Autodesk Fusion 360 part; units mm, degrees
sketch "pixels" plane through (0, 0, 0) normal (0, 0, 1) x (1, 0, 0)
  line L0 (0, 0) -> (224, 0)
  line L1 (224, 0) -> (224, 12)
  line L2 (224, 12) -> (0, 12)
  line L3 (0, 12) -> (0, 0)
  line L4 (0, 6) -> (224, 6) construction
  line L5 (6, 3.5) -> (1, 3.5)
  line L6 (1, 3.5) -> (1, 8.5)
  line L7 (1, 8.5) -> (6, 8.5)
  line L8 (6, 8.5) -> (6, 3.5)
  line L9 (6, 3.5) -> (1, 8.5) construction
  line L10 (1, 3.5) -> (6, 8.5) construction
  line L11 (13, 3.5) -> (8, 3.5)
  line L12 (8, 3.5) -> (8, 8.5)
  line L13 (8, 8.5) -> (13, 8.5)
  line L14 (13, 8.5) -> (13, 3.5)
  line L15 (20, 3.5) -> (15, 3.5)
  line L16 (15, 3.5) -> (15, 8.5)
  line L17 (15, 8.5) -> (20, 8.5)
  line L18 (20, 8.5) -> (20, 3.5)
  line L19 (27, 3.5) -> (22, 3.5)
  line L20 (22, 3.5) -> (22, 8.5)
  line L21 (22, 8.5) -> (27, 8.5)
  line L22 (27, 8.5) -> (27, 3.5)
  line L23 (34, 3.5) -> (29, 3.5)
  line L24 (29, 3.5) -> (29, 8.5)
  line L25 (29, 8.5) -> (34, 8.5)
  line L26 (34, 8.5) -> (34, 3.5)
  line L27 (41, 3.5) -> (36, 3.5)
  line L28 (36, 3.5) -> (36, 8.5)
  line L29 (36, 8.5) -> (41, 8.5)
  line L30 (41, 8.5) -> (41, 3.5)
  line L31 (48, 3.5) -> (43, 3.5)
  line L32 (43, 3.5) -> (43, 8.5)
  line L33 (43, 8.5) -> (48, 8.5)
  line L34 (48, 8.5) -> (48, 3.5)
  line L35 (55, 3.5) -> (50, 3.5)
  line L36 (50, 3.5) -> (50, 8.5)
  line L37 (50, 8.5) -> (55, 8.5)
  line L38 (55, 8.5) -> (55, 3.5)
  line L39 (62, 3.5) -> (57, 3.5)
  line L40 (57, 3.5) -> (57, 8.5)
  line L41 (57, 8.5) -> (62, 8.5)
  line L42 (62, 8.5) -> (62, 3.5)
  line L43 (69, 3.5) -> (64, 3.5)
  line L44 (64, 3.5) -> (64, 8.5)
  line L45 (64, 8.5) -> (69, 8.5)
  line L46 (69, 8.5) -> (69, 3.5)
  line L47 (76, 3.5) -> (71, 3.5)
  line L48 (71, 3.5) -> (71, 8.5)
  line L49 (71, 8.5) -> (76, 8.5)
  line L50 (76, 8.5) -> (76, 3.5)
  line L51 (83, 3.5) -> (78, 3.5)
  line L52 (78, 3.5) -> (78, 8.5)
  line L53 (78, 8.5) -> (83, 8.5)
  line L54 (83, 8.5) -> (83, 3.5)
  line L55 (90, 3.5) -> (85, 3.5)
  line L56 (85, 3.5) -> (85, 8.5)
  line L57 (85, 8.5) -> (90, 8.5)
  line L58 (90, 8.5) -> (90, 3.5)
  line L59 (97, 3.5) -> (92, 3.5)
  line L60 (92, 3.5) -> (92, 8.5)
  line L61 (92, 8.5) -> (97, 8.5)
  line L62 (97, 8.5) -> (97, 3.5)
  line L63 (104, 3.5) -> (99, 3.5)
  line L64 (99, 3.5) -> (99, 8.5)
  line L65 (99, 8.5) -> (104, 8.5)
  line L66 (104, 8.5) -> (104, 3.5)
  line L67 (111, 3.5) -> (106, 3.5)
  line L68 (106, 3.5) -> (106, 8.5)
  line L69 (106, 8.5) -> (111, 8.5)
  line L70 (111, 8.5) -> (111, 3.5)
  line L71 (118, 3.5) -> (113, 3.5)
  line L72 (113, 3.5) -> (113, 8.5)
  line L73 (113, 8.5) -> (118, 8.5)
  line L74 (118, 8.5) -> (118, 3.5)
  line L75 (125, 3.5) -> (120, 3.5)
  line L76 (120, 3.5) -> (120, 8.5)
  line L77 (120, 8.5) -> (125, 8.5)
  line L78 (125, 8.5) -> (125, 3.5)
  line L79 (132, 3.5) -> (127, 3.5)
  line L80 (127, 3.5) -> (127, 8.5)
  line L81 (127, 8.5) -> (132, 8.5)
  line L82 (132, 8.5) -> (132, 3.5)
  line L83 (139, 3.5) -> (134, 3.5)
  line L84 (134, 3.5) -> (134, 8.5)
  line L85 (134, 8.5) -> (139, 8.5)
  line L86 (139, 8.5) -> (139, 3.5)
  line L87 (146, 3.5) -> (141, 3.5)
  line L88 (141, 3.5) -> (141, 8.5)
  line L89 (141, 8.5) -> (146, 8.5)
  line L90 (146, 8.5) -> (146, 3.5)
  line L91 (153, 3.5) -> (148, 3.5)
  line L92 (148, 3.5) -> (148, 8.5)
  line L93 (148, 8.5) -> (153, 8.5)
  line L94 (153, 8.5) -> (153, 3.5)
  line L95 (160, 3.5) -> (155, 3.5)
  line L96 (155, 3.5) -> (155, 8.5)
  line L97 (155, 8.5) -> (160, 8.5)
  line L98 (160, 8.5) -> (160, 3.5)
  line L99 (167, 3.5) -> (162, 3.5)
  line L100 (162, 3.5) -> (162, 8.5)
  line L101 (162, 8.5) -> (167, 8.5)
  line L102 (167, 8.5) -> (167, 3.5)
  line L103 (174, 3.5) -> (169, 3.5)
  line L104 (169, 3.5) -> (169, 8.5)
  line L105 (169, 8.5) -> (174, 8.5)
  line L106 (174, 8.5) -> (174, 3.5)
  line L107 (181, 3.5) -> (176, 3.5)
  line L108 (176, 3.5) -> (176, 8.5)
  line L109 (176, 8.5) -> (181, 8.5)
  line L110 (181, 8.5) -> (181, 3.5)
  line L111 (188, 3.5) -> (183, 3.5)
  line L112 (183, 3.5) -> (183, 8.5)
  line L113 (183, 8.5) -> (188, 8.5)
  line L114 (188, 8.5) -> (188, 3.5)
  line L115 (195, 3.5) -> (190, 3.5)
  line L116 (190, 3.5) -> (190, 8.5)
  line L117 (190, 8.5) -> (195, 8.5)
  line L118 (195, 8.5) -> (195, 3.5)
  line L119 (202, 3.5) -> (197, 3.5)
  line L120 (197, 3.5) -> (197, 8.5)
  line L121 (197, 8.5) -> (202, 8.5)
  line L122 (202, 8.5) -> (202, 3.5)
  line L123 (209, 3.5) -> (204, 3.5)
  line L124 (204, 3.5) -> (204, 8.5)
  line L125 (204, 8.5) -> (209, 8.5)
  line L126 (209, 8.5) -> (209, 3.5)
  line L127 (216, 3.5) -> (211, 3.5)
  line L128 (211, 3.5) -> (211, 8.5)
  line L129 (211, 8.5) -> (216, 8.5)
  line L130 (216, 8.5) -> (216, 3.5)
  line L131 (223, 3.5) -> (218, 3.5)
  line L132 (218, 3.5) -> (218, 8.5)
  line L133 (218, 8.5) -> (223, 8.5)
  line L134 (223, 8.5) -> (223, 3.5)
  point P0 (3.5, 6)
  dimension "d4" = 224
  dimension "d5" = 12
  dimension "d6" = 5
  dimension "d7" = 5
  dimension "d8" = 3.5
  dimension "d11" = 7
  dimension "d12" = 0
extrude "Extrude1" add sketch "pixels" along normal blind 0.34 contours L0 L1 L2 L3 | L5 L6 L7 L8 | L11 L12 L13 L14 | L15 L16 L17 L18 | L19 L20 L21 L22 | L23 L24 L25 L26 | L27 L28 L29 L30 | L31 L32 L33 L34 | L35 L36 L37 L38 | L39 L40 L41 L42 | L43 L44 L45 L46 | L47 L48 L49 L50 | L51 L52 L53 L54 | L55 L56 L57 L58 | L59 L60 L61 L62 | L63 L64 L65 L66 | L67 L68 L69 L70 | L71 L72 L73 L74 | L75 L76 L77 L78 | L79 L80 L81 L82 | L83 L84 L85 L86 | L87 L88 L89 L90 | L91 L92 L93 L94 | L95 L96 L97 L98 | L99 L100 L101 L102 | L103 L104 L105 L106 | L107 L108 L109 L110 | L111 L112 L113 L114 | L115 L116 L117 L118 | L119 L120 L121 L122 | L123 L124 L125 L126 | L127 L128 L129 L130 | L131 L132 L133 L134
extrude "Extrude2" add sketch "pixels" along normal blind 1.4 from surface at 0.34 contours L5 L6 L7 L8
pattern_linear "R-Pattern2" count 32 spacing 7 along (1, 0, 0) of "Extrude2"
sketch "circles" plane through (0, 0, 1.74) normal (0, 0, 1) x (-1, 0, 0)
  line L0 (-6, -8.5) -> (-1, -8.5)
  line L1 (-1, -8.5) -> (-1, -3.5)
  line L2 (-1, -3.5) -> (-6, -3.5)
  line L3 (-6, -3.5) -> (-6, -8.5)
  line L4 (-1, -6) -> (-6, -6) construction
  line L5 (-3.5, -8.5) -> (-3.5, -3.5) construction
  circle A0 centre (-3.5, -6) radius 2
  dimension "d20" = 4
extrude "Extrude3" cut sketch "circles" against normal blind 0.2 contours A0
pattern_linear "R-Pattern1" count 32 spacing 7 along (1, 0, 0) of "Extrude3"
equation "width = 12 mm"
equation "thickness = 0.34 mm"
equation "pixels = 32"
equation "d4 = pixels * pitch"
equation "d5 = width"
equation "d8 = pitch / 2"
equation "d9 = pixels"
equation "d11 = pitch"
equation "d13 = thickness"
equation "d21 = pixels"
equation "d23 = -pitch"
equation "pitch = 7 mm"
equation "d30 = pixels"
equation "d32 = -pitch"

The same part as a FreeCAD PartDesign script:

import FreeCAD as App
import Part
import Sketcher

doc = App.newDocument("Part")
body = doc.addObject("PartDesign::Body", "Body")

# Sketch on XY plane
sketch1 = body.newObject("Sketcher::SketchObject", "Sketch")
sketch1.AttachmentSupport = (doc.getObject("XY_Plane"), [""])
sketch1.MapMode = "FlatFace"
sketch1.addGeometry(Part.LineSegment(App.Vector(0, 12, 0), App.Vector(0, 0, 0)), False)
sketch1.addGeometry(Part.LineSegment(App.Vector(0, 0, 0), App.Vector(224, 0, 0)), False)
sketch1.addGeometry(Part.LineSegment(App.Vector(224, 0, 0), App.Vector(224, 12, 0)), False)
sketch1.addGeometry(Part.LineSegment(App.Vector(224, 12, 0), App.Vector(0, 12, 0)), False)
sketch1.addConstraint(Sketcher.Constraint("Coincident", 0, 2, 1, 1))
sketch1.addConstraint(Sketcher.Constraint("Coincident", 1, 2, 2, 1))
sketch1.addConstraint(Sketcher.Constraint("Coincident", 2, 2, 3, 1))
sketch1.addConstraint(Sketcher.Constraint("Coincident", 3, 2, 0, 1))
sketch1.addConstraint(Sketcher.Constraint("Vertical", 0))
sketch1.addConstraint(Sketcher.Constraint("Horizontal", 1))
sketch1.addConstraint(Sketcher.Constraint("Vertical", 2))
sketch1.addConstraint(Sketcher.Constraint("Horizontal", 3))
sketch1.addConstraint(Sketcher.Constraint("Coincident", 0, 2, -1, 1))
sketch1.addConstraint(Sketcher.Constraint("DistanceX", 1, 1, 1, 2, 224.0))
sketch1.addConstraint(Sketcher.Constraint("DistanceY", 0, 2, 0, 1, 12.0))
pad1 = body.newObject("PartDesign::Pad", "Pad")
pad1.Profile = sketch1
pad1.Length = 0.34

# Sketch on XY plane
sketch2 = body.newObject("Sketcher::SketchObject", "Sketch001")
sketch2.AttachmentSupport = (doc.getObject("XY_Plane"), [""])
sketch2.MapMode = "FlatFace"
sketch2.AttachmentOffset = App.Placement(App.Vector(0, 0, 0.34), App.Rotation())
sketch2.addGeometry(Part.LineSegment(App.Vector(1, 3.5, 0), App.Vector(6, 3.5, 0)), False)
sketch2.addGeometry(Part.LineSegment(App.Vector(6, 3.5, 0), App.Vector(6, 8.5, 0)), False)
sketch2.addGeometry(Part.LineSegment(App.Vector(6, 8.5, 0), App.Vector(1, 8.5, 0)), False)
sketch2.addGeometry(Part.LineSegment(App.Vector(1, 8.5, 0), App.Vector(1, 3.5, 0)), False)
sketch2.addConstraint(Sketcher.Constraint("Coincident", 0, 2, 1, 1))
sketch2.addConstraint(Sketcher.Constraint("Coincident", 1, 2, 2, 1))
sketch2.addConstraint(Sketcher.Constraint("Coincident", 2, 2, 3, 1))
sketch2.addConstraint(Sketcher.Constraint("Coincident", 3, 2, 0, 1))
sketch2.addConstraint(Sketcher.Constraint("Horizontal", 0))
sketch2.addConstraint(Sketcher.Constraint("Vertical", 1))
sketch2.addConstraint(Sketcher.Constraint("Horizontal", 2))
sketch2.addConstraint(Sketcher.Constraint("Vertical", 3))
sketch2.addConstraint(Sketcher.Constraint("Equal", 2, 1))
sketch2.addConstraint(Sketcher.Constraint("DistanceX", 0, 1, 0, 2, 5.0))
sketch2.addConstraint(Sketcher.Constraint("DistanceY", -1, 1, 0, 2, 3.5))
sketch2.addConstraint(Sketcher.Constraint("DistanceX", -1, 1, 0, 2, 6.0))
pad2 = body.newObject("PartDesign::Pad", "Pad001")
pad2.Profile = sketch2
pad2.Length = 1.4
doc.recompute()

linearpattern = body.newObject("PartDesign::LinearPattern", "LinearPattern")
linearpattern.Originals = [pad2]
linearpattern.Direction = (doc.getObject("X_Axis"), [""])
linearpattern.Mode = "offset"
linearpattern.Offset = 7
linearpattern.Occurrences = 32
body.Tip = linearpattern

# Sketch on XY plane
sketch3 = body.newObject("Sketcher::SketchObject", "Sketch002")
sketch3.AttachmentSupport = (doc.getObject("XY_Plane"), [""])
sketch3.MapMode = "FlatFace"
sketch3.AttachmentOffset = App.Placement(App.Vector(0, 0, 1.74), App.Rotation())
sketch3.addGeometry(Part.Circle(App.Vector(3.5, 6, 0), App.Vector(0, 0, 1), 2), False)
sketch3.addConstraint(Sketcher.Constraint("Diameter", 0, 4.0))
sketch3.addConstraint(Sketcher.Constraint("DistanceY", -1, 1, 0, 3, 6.0))
sketch3.addConstraint(Sketcher.Constraint("DistanceX", -1, 1, 0, 3, 3.5))
pocket1 = body.newObject("PartDesign::Pocket", "Pocket")
pocket1.Profile = sketch3
pocket1.Length = 0.2
doc.recompute()

linearpattern2 = body.newObject("PartDesign::LinearPattern", "LinearPattern001")
linearpattern2.Originals = [pocket1]
linearpattern2.Direction = (doc.getObject("X_Axis"), [""])
linearpattern2.Mode = "offset"
linearpattern2.Offset = 7
linearpattern2.Occurrences = 32
body.Tip = linearpattern2

doc.recompute()
